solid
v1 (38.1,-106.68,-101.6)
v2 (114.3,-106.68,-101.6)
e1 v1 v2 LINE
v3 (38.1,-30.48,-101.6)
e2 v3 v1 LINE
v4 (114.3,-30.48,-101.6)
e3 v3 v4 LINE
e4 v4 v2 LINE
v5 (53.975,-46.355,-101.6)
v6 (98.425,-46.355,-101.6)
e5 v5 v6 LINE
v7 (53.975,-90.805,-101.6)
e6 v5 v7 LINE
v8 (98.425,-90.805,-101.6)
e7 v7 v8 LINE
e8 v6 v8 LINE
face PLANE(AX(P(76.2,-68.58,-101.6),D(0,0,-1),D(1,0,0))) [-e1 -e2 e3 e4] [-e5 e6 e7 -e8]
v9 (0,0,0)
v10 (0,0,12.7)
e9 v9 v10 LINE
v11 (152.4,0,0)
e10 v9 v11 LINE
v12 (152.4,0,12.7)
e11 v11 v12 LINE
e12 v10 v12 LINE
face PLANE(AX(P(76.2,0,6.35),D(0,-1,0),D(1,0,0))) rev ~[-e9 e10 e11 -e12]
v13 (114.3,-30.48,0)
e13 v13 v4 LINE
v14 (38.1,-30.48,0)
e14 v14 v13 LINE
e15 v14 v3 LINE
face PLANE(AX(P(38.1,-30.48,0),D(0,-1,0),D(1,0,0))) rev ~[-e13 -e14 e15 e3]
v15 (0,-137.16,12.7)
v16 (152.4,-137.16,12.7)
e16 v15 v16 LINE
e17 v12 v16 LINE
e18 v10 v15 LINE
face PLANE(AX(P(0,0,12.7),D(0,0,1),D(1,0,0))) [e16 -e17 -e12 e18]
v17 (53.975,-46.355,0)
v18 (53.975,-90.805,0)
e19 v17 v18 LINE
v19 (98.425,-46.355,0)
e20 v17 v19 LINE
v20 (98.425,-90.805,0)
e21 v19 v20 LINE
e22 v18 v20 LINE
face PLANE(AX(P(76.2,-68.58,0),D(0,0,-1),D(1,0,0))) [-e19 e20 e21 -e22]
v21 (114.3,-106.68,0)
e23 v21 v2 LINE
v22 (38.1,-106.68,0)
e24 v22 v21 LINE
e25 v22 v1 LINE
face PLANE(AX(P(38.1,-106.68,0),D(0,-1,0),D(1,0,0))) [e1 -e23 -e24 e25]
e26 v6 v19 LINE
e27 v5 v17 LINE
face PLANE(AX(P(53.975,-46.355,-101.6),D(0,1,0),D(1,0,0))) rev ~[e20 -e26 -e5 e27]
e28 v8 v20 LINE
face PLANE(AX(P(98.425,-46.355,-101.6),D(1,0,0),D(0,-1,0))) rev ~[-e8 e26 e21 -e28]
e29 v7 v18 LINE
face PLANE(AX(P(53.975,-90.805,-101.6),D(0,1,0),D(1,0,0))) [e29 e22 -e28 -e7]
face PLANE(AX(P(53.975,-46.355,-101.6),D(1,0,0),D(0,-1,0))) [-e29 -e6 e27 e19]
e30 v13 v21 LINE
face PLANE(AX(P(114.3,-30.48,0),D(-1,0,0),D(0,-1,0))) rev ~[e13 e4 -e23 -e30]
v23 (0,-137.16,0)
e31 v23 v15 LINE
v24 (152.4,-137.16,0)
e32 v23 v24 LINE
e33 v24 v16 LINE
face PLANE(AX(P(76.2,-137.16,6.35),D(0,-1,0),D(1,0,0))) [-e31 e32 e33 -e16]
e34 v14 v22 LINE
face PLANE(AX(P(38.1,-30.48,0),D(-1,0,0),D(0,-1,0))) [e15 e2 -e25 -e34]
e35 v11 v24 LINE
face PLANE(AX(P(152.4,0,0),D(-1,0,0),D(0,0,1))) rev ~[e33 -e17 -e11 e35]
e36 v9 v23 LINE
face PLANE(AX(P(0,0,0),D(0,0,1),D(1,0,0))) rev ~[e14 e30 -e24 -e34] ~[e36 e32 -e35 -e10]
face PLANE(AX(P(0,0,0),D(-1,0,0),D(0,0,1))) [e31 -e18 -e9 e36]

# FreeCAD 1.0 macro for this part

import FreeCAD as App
import Part
import Sketcher
from FreeCAD import Vector
Q = App.Units.Quantity

doc = App.newDocument("Part")
body = doc.addObject("PartDesign::Body", "Body")

sketch1 = body.newObject("Sketcher::SketchObject", "Sketch")
sketch1.AttachmentSupport = (doc.getObject("XZ_Plane"), [""])
sketch1.MapMode = "FlatFace"
sketch1.addGeometry(Part.LineSegment(Vector(0, 13, 0), Vector(0, 0, 0)), False)
sketch1.addGeometry(Part.LineSegment(Vector(0, 0, 0), Vector(152, 0, 0)), False)
sketch1.addGeometry(Part.LineSegment(Vector(152, 0, 0), Vector(152, 13, 0)), False)
sketch1.addGeometry(Part.LineSegment(Vector(152, 13, 0), Vector(0, 13, 0)), False)
sketch1.addConstraint(Sketcher.Constraint("Coincident", 0, 2, 1, 1))
sketch1.addConstraint(Sketcher.Constraint("Coincident", 1, 2, 2, 1))
sketch1.addConstraint(Sketcher.Constraint("Coincident", 2, 2, 3, 1))
sketch1.addConstraint(Sketcher.Constraint("Coincident", 3, 2, 0, 1))
sketch1.addConstraint(Sketcher.Constraint("Vertical", 0))
sketch1.addConstraint(Sketcher.Constraint("Horizontal", 1))
sketch1.addConstraint(Sketcher.Constraint("Vertical", 2))
sketch1.addConstraint(Sketcher.Constraint("Horizontal", 3))
sketch1.addConstraint(Sketcher.Constraint("Coincident", 0, 2, -1, 1))
sketch1.addConstraint(Sketcher.Constraint("DistanceX", 1, 1, 1, 2, Q("6 in")))
sketch1.addConstraint(Sketcher.Constraint("DistanceY", 0, 2, 0, 1, Q("0.5 in")))
pad1 = body.newObject("PartDesign::Pad", "Pad")
pad1.Profile = sketch1
pad1.Length = Q("5.4 in")

sketch2 = body.newObject("Sketcher::SketchObject", "Sketch001")
sketch2.AttachmentSupport = (doc.getObject("XY_Plane"), [""])
sketch2.MapMode = "FlatFace"
sketch2.addGeometry(Part.LineSegment(Vector(38, -107, 0), Vector(38, -30, 0)), False)
sketch2.addGeometry(Part.LineSegment(Vector(38, -30, 0), Vector(114, -30, 0)), False)
sketch2.addGeometry(Part.LineSegment(Vector(114, -30, 0), Vector(114, -107, 0)), False)
sketch2.addGeometry(Part.LineSegment(Vector(114, -107, 0), Vector(38, -107, 0)), False)
sketch2.addConstraint(Sketcher.Constraint("Coincident", 0, 2, 1, 1))
sketch2.addConstraint(Sketcher.Constraint("Coincident", 1, 2, 2, 1))
sketch2.addConstraint(Sketcher.Constraint("Coincident", 2, 2, 3, 1))
sketch2.addConstraint(Sketcher.Constraint("Coincident", 3, 2, 0, 1))
sketch2.addConstraint(Sketcher.Constraint("Vertical", 0))
sketch2.addConstraint(Sketcher.Constraint("Horizontal", 1))
sketch2.addConstraint(Sketcher.Constraint("Vertical", 2))
sketch2.addConstraint(Sketcher.Constraint("Horizontal", 3))
sketch2.addConstraint(Sketcher.Constraint("Equal", 3, 0))
sketch2.addConstraint(Sketcher.Constraint("DistanceX", 1, 1, 1, 2, Q("3 in")))
sketch2.addConstraint(Sketcher.Constraint("DistanceX", -1, 1, 0, 2, Q("1.5 in")))
sketch2.addConstraint(Sketcher.Constraint("DistanceY", 0, 2, -1, 1, Q("1.2 in")))
pad2 = body.newObject("PartDesign::Pad", "Pad001")
pad2.Profile = sketch2
pad2.Length = Q("4 in")
pad2.Reversed = True

sketch3 = body.newObject("Sketcher::SketchObject", "Sketch002")
sketch3.AttachmentSupport = (doc.getObject("XY_Plane"), [""])
sketch3.MapMode = "FlatFace"
sketch3.AttachmentOffset = App.Placement(Vector(0, 0, -4 * 25.4), App.Rotation())
sketch3.addGeometry(Part.LineSegment(Vector(54, -91, 0), Vector(54, -46, 0)), False)
sketch3.addGeometry(Part.LineSegment(Vector(54, -46, 0), Vector(98, -46, 0)), False)
sketch3.addGeometry(Part.LineSegment(Vector(98, -46, 0), Vector(98, -91, 0)), False)
sketch3.addGeometry(Part.LineSegment(Vector(98, -91, 0), Vector(54, -91, 0)), False)
sketch3.addConstraint(Sketcher.Constraint("Coincident", 0, 2, 1, 1))
sketch3.addConstraint(Sketcher.Constraint("Coincident", 1, 2, 2, 1))
sketch3.addConstraint(Sketcher.Constraint("Coincident", 2, 2, 3, 1))
sketch3.addConstraint(Sketcher.Constraint("Coincident", 3, 2, 0, 1))
sketch3.addConstraint(Sketcher.Constraint("Vertical", 0))
sketch3.addConstraint(Sketcher.Constraint("Horizontal", 1))
sketch3.addConstraint(Sketcher.Constraint("Vertical", 2))
sketch3.addConstraint(Sketcher.Constraint("Horizontal", 3))
sketch3.addConstraint(Sketcher.Constraint("Equal", 3, 0))
sketch3.addConstraint(Sketcher.Constraint("DistanceX", 1, 1, 1, 2, Q("1.75 in")))
sketch3.addConstraint(Sketcher.Constraint("DistanceX", -1, 1, 0, 2, Q("2.125 in")))
sketch3.addConstraint(Sketcher.Constraint("DistanceY", 0, 2, -1, 1, Q("1.825 in")))
pocket1 = body.newObject("PartDesign::Pocket", "Pocket")
pocket1.Profile = sketch3
pocket1.Length = Q("4 in")
pocket1.Reversed = True

doc.recompute()
